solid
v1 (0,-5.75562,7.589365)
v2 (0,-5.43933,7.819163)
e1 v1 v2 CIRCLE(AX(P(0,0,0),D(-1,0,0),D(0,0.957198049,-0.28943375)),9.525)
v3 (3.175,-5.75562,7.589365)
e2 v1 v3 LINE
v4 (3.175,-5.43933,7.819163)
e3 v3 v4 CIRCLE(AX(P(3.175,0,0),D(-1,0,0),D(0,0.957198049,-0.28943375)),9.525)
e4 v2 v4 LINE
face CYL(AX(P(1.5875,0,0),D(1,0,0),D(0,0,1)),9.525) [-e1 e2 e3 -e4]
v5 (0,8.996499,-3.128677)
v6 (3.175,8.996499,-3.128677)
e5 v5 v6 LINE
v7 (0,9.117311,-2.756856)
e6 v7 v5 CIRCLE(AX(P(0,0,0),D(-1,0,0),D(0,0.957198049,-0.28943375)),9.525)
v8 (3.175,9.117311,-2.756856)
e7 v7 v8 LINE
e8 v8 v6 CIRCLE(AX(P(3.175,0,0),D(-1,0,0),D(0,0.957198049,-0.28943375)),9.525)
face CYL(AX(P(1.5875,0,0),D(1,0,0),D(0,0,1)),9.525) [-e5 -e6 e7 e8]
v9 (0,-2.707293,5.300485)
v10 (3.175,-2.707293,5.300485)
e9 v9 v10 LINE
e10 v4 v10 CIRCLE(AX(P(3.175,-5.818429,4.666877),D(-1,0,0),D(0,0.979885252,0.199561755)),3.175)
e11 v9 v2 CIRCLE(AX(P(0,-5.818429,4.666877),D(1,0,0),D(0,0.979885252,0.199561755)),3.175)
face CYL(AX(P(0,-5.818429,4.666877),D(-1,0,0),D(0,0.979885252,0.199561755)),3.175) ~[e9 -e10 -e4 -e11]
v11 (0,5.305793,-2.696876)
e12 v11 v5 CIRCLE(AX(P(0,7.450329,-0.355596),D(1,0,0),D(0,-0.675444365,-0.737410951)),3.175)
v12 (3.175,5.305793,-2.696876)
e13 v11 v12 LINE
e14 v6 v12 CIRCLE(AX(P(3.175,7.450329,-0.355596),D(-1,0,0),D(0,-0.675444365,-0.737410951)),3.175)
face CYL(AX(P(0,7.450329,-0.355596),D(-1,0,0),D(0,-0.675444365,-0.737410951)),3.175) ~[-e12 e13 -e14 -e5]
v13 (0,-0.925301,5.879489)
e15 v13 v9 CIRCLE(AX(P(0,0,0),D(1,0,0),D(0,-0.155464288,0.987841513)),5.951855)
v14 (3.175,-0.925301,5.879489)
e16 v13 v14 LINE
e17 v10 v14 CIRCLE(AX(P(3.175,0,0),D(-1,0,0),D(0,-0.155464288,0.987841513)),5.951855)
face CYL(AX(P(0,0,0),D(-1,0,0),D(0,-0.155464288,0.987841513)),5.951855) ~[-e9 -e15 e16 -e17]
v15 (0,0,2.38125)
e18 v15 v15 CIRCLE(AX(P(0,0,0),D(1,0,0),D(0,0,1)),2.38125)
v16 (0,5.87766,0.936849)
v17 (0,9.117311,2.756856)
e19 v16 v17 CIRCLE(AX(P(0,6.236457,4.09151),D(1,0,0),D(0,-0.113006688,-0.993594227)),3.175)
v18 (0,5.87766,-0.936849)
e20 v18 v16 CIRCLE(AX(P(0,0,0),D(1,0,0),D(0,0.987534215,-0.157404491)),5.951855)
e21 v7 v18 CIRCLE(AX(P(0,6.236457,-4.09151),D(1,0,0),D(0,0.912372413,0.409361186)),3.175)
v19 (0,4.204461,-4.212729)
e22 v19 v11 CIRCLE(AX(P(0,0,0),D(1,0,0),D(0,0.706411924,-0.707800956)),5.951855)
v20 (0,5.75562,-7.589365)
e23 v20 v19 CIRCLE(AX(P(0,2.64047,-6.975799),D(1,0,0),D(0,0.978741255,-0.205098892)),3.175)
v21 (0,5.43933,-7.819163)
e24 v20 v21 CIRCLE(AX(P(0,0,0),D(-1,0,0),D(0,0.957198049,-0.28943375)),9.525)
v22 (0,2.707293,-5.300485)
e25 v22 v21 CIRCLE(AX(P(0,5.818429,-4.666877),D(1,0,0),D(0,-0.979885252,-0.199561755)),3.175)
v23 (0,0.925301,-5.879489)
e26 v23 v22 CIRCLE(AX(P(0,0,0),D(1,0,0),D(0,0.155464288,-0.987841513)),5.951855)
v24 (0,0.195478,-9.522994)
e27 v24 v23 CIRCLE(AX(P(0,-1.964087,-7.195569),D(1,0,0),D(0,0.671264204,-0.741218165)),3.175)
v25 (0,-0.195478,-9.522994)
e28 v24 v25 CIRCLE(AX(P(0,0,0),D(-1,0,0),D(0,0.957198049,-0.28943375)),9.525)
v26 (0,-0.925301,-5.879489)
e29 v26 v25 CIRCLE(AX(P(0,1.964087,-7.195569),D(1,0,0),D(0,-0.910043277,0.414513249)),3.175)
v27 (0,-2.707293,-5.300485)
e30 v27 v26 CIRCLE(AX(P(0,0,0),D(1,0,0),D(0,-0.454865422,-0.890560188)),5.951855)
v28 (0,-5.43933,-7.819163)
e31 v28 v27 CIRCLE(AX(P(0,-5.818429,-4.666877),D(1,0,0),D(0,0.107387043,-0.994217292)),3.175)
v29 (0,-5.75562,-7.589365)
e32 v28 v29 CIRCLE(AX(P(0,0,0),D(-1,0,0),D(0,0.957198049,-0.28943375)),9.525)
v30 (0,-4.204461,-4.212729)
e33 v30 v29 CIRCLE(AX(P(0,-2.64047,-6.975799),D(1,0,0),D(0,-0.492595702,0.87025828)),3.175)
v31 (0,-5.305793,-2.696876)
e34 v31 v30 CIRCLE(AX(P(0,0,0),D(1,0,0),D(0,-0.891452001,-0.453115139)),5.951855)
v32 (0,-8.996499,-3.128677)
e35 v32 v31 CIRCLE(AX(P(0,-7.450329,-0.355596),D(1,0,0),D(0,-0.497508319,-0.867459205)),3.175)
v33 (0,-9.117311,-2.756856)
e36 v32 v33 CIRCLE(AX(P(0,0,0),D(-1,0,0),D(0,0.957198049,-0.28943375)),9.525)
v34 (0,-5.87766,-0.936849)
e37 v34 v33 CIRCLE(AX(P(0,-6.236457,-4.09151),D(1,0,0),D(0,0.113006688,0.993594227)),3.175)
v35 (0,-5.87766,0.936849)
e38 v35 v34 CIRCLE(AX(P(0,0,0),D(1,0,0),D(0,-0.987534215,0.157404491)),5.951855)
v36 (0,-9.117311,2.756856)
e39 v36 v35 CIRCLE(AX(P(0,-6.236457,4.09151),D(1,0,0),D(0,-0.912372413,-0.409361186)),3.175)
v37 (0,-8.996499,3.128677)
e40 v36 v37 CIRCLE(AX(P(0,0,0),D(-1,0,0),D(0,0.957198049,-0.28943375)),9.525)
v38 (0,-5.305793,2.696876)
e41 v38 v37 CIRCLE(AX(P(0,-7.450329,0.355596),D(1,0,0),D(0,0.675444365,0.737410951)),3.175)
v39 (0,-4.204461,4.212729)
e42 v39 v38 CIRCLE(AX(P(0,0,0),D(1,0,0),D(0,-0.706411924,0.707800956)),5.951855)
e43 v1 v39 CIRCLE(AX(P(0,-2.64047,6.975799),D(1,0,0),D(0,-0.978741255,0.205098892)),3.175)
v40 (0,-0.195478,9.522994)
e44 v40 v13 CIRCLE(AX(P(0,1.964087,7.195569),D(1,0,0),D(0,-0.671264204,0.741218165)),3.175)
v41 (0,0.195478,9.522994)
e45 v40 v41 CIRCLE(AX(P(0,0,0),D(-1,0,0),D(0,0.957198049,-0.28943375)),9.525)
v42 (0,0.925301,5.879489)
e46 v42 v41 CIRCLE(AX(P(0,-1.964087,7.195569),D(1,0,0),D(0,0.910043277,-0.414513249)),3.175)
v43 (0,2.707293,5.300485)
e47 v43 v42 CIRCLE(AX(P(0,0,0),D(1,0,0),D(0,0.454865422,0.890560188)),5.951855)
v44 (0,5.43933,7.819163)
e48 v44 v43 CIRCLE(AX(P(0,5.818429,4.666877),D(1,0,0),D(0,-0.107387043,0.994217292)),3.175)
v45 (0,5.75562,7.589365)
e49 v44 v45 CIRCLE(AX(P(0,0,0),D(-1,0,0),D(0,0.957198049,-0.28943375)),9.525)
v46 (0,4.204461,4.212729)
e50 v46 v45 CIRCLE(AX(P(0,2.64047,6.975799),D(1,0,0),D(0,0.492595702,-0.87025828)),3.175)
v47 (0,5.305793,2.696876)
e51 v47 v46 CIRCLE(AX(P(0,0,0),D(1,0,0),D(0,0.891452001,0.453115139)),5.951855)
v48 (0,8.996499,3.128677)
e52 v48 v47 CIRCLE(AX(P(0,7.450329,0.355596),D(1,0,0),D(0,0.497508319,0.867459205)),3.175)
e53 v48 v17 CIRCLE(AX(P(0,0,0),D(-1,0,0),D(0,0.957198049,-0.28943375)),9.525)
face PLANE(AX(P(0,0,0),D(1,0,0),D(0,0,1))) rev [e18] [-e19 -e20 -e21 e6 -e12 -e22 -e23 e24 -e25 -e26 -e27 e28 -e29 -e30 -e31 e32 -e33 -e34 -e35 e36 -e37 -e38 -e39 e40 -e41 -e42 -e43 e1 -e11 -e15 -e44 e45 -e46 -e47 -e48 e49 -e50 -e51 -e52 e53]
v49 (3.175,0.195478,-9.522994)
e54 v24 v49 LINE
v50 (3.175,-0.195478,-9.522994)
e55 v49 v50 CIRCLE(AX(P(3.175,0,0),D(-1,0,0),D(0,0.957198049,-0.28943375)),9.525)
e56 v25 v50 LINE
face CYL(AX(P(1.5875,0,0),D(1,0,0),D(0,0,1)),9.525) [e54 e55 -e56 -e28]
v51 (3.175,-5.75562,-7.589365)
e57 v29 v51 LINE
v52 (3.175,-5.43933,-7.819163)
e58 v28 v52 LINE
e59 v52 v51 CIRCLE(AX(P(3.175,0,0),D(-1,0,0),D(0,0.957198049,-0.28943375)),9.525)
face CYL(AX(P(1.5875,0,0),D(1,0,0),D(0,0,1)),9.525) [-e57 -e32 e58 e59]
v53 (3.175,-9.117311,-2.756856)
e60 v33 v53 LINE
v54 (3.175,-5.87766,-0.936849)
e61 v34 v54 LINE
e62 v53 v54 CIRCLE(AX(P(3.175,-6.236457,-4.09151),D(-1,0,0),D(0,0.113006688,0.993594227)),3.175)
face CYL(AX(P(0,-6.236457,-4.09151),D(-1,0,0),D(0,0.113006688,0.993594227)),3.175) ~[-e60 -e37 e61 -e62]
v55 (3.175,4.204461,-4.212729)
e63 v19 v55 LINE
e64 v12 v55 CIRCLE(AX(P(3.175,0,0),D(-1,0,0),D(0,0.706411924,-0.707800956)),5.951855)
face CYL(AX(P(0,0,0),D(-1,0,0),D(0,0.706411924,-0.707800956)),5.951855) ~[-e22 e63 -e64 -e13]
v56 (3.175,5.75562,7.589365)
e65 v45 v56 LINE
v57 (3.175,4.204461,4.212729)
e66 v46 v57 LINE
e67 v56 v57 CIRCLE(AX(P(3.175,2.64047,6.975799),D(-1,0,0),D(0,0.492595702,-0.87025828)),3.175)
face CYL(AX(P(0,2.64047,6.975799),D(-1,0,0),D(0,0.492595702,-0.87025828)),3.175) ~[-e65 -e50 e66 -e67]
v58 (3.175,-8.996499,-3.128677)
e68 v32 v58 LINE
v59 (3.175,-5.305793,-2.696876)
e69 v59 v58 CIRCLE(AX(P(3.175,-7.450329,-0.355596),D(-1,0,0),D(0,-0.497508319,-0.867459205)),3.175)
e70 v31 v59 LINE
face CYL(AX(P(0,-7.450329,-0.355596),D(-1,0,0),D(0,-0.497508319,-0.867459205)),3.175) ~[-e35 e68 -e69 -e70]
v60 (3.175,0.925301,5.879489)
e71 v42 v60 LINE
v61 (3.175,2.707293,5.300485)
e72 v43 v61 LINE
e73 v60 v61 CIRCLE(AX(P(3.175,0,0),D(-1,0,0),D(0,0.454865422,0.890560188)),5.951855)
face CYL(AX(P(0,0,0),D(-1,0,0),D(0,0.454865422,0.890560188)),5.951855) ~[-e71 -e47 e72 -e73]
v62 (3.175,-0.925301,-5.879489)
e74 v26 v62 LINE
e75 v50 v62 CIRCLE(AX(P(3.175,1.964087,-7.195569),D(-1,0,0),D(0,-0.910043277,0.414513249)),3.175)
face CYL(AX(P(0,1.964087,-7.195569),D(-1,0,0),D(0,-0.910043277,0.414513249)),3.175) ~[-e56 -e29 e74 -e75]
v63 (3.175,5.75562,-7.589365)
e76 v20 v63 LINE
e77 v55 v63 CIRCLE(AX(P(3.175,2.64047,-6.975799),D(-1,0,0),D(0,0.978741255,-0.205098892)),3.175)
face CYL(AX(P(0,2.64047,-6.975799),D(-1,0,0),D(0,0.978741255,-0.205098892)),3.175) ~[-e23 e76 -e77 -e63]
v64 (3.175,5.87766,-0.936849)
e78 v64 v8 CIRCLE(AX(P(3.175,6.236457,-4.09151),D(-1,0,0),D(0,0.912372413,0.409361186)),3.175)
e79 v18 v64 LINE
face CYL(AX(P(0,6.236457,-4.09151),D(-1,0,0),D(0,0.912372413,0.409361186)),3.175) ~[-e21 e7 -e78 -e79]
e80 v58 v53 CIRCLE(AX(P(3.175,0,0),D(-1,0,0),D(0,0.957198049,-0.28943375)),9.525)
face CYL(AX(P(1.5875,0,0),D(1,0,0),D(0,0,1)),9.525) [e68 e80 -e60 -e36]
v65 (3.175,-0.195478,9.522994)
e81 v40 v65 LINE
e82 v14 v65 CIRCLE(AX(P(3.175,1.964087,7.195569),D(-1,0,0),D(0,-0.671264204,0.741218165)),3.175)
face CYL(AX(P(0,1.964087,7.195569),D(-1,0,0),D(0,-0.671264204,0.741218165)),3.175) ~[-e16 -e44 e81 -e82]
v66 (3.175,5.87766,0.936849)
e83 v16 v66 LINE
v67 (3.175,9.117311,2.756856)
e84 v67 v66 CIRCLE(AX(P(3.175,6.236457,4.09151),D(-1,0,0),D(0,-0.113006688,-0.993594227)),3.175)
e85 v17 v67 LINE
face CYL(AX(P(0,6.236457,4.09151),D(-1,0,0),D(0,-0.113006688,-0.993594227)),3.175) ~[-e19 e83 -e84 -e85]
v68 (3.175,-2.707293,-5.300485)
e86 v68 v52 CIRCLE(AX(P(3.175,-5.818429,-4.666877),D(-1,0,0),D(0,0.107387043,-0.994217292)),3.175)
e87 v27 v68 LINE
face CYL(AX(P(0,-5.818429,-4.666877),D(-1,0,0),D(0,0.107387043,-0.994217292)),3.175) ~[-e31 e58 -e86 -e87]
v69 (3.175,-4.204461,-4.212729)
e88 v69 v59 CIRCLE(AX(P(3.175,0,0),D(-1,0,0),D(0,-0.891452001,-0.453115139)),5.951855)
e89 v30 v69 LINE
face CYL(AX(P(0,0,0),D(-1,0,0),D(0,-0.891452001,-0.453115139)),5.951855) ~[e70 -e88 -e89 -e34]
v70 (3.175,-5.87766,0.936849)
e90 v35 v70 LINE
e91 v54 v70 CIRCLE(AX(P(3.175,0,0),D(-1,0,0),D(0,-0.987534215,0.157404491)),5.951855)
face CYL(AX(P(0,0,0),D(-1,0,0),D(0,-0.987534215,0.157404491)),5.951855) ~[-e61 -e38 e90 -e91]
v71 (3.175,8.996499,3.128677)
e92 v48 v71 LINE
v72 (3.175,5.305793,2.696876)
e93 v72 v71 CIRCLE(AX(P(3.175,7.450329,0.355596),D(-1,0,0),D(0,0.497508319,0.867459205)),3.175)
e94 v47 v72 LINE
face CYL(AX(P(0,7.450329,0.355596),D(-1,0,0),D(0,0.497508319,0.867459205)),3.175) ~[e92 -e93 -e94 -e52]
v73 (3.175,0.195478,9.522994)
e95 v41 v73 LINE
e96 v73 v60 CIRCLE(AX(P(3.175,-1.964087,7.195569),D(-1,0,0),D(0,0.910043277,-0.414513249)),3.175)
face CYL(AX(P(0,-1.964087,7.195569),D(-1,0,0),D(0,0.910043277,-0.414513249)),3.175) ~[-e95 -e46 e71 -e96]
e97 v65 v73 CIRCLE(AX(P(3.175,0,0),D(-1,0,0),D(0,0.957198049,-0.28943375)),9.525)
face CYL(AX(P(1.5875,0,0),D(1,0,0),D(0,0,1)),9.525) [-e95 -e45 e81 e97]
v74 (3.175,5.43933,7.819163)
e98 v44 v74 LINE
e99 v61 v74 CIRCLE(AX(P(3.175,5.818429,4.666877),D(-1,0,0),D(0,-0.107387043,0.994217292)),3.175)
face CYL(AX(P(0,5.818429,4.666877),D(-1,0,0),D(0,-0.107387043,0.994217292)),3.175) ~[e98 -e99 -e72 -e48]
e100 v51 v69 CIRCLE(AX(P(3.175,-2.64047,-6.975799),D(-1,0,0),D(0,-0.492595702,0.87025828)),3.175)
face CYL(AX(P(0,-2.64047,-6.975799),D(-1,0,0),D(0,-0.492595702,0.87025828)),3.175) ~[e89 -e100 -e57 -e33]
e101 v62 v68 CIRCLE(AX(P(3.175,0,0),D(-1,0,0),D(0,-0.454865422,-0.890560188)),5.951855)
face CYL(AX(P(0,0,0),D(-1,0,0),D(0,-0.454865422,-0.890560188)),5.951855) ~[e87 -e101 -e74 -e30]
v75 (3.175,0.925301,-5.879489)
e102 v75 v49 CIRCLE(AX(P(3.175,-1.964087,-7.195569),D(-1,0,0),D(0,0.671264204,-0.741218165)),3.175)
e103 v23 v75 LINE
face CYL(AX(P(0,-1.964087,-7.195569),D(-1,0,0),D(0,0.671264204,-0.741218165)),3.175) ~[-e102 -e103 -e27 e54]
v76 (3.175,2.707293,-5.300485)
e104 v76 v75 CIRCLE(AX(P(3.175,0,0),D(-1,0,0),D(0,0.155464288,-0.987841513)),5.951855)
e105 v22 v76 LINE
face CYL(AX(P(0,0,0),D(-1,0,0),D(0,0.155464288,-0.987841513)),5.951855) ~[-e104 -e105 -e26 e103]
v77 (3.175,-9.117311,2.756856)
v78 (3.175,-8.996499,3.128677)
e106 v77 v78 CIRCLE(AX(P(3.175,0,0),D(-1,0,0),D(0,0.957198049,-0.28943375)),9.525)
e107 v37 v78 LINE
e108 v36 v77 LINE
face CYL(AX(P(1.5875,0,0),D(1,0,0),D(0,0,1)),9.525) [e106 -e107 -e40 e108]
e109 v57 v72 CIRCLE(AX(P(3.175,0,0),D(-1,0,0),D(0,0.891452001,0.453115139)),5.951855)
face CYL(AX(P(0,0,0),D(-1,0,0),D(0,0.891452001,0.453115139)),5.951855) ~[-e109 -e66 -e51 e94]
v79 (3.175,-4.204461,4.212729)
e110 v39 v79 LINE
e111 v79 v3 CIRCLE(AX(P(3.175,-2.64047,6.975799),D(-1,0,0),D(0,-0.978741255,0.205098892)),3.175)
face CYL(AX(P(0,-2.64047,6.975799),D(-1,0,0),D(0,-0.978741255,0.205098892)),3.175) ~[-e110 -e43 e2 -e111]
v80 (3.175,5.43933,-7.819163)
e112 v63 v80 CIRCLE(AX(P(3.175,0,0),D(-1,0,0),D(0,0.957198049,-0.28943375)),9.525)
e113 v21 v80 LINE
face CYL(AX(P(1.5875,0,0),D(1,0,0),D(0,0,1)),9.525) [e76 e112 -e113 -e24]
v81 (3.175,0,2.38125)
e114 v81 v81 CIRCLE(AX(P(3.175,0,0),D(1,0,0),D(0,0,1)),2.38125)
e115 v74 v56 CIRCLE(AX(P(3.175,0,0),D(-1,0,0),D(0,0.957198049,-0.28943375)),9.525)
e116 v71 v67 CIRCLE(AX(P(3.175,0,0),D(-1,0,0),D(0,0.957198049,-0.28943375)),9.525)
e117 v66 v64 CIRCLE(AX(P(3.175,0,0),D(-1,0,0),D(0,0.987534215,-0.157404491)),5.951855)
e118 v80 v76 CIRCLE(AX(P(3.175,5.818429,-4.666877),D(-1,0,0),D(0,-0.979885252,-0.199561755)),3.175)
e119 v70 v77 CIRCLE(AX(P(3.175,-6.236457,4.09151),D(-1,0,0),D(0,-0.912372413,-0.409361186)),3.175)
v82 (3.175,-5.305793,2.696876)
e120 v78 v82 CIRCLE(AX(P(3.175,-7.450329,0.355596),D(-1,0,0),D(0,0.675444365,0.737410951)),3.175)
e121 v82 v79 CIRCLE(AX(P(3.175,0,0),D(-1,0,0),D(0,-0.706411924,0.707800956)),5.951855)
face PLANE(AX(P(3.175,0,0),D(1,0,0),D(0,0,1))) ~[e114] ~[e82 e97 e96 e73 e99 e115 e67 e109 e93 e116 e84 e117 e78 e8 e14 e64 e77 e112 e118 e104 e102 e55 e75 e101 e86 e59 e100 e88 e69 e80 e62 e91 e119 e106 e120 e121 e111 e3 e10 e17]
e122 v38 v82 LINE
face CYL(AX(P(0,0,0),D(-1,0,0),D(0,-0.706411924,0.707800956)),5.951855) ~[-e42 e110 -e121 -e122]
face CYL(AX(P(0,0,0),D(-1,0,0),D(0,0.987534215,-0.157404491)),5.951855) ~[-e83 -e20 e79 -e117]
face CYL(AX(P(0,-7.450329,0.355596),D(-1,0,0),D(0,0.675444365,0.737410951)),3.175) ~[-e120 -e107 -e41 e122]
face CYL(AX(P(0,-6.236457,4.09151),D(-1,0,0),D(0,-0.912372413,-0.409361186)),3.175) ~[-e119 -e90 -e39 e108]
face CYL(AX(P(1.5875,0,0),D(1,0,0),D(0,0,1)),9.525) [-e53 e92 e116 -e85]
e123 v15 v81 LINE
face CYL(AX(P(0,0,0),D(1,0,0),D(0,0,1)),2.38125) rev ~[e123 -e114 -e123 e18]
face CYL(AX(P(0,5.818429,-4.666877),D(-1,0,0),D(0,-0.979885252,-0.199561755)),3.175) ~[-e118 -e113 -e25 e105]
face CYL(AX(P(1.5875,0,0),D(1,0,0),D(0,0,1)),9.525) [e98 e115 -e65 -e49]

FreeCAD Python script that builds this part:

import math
import FreeCAD as App
import Part
import Sketcher
from FreeCAD import Vector
Q = App.Units.Quantity

doc = App.newDocument("Part")
body = doc.addObject("PartDesign::Body", "Body")

sketch1 = doc.addObject("Sketcher::SketchObject", "Sketch")
body.addObject(sketch1)
sketch1.AttachmentSupport = (doc.XZ_Plane, [""])
sketch1.MapMode = "FlatFace"
sketch1.addGeometry([
    Part.LineSegment(Vector(0, -9.5, 0), Vector(0, 0, 0)),
    Part.LineSegment(Vector(0, 0, 0), Vector(3.2, 0, 0)),
    Part.LineSegment(Vector(3.2, 0, 0), Vector(3.2, -9.5, 0)),
    Part.LineSegment(Vector(3.2, -9.5, 0), Vector(0, -9.5, 0)),
], False)
sketch1.addConstraint([
    Sketcher.Constraint("Coincident", 0, 2, 1, 1),
    Sketcher.Constraint("Coincident", 1, 2, 2, 1),
    Sketcher.Constraint("Coincident", 2, 2, 3, 1),
    Sketcher.Constraint("Coincident", 3, 2, 0, 1),
    Sketcher.Constraint("Vertical", 0),
    Sketcher.Constraint("Horizontal", 1),
    Sketcher.Constraint("Vertical", 2),
    Sketcher.Constraint("Horizontal", 3),
    Sketcher.Constraint("Coincident", 0, 2, -1, 1),
    Sketcher.Constraint("DistanceX", 1, 1, 1, 2, Q("0.125 in")),
    Sketcher.Constraint("DistanceY", 0, 1, 0, 2, Q("0.375 in")),
])
revolution = doc.addObject("PartDesign::Revolution", "Revolution")
body.addObject(revolution)
revolution.Profile = sketch1
revolution.ReferenceAxis = (sketch1, ["H_Axis"])
revolution.Angle = 360

sketch2 = doc.addObject("Sketcher::SketchObject", "Sketch001")
body.addObject(sketch2)
sketch2.AttachmentSupport = (doc.YZ_Plane, [""])
sketch2.MapMode = "FlatFace"
sketch2.addGeometry([
    Part.ArcOfCircle(Part.Circle(Vector(0, 0, 0), Vector(0, 0, 1), 6), math.radians(-9.06), math.radians(9.06)),
    Part.ArcOfCircle(Part.Circle(Vector(6.2, -4.1, 0), Vector(0, 0, 1), 3.2), math.radians(24), math.radians(96)),
    Part.ArcOfCircle(Part.Circle(Vector(0, 0, 0), Vector(0, 0, 1), 9.6), math.radians(-17), math.radians(17)),
    Part.ArcOfCircle(Part.Circle(Vector(6.2, 4.1, 0), Vector(0, 0, 1), 3.2), math.radians(-96), math.radians(-24)),
], False)
sketch2.addConstraint([
    Sketcher.Constraint("Coincident", 0, 1, 1, 2),
    Sketcher.Constraint("Coincident", 1, 1, 2, 1),
    Sketcher.Constraint("Coincident", 2, 2, 3, 2),
    Sketcher.Constraint("Coincident", 3, 1, 0, 2),
    Sketcher.Constraint("Coincident", 0, 3, -1, 1),
    Sketcher.Constraint("Coincident", 2, 3, -1, 1),
    Sketcher.Constraint("Equal", 1, 3),
    Sketcher.Constraint("Symmetric", 1, 3, 3, 3, -1),
    Sketcher.Constraint("Radius", 1, Q("0.125 in")),
    Sketcher.Constraint("Radius", 2, Q("0.376 in")),
    Sketcher.Constraint("Radius", 0, 5.951855),
    Sketcher.Constraint("DistanceY", 1, 1, 3, 3, 6.883299),
    Sketcher.Constraint("DistanceY", 1, 3, -1, 1, 4.09151),
])
pocket1 = doc.addObject("PartDesign::Pocket", "Pocket")
body.addObject(pocket1)
pocket1.Profile = sketch2
pocket1.Type = "ThroughAll"
pocket1.Reversed = True
doc.recompute()

polarpattern = doc.addObject("PartDesign::PolarPattern", "PolarPattern")
body.addObject(polarpattern)
polarpattern.Originals = [pocket1]
polarpattern.Axis = (doc.X_Axis, [""])
polarpattern.Angle = 360
polarpattern.Occurrences = 10
body.Tip = polarpattern

sketch3 = doc.addObject("Sketcher::SketchObject", "Sketch002")
body.addObject(sketch3)
sketch3.AttachmentSupport = (doc.YZ_Plane, [""])
sketch3.MapMode = "FlatFace"
sketch3.addGeometry(Part.Circle(Vector(0, 0, 0), Vector(0, 0, 1), 2.4), False)
sketch3.addConstraint([
    Sketcher.Constraint("Coincident", 0, 3, -1, 1),
    Sketcher.Constraint("Diameter", 0, Q("0.1875 in")),
])
pocket2 = doc.addObject("PartDesign::Pocket", "Pocket001")
body.addObject(pocket2)
pocket2.Profile = sketch3
pocket2.Length = 101.600102
pocket2.Midplane = True

doc.recompute()
